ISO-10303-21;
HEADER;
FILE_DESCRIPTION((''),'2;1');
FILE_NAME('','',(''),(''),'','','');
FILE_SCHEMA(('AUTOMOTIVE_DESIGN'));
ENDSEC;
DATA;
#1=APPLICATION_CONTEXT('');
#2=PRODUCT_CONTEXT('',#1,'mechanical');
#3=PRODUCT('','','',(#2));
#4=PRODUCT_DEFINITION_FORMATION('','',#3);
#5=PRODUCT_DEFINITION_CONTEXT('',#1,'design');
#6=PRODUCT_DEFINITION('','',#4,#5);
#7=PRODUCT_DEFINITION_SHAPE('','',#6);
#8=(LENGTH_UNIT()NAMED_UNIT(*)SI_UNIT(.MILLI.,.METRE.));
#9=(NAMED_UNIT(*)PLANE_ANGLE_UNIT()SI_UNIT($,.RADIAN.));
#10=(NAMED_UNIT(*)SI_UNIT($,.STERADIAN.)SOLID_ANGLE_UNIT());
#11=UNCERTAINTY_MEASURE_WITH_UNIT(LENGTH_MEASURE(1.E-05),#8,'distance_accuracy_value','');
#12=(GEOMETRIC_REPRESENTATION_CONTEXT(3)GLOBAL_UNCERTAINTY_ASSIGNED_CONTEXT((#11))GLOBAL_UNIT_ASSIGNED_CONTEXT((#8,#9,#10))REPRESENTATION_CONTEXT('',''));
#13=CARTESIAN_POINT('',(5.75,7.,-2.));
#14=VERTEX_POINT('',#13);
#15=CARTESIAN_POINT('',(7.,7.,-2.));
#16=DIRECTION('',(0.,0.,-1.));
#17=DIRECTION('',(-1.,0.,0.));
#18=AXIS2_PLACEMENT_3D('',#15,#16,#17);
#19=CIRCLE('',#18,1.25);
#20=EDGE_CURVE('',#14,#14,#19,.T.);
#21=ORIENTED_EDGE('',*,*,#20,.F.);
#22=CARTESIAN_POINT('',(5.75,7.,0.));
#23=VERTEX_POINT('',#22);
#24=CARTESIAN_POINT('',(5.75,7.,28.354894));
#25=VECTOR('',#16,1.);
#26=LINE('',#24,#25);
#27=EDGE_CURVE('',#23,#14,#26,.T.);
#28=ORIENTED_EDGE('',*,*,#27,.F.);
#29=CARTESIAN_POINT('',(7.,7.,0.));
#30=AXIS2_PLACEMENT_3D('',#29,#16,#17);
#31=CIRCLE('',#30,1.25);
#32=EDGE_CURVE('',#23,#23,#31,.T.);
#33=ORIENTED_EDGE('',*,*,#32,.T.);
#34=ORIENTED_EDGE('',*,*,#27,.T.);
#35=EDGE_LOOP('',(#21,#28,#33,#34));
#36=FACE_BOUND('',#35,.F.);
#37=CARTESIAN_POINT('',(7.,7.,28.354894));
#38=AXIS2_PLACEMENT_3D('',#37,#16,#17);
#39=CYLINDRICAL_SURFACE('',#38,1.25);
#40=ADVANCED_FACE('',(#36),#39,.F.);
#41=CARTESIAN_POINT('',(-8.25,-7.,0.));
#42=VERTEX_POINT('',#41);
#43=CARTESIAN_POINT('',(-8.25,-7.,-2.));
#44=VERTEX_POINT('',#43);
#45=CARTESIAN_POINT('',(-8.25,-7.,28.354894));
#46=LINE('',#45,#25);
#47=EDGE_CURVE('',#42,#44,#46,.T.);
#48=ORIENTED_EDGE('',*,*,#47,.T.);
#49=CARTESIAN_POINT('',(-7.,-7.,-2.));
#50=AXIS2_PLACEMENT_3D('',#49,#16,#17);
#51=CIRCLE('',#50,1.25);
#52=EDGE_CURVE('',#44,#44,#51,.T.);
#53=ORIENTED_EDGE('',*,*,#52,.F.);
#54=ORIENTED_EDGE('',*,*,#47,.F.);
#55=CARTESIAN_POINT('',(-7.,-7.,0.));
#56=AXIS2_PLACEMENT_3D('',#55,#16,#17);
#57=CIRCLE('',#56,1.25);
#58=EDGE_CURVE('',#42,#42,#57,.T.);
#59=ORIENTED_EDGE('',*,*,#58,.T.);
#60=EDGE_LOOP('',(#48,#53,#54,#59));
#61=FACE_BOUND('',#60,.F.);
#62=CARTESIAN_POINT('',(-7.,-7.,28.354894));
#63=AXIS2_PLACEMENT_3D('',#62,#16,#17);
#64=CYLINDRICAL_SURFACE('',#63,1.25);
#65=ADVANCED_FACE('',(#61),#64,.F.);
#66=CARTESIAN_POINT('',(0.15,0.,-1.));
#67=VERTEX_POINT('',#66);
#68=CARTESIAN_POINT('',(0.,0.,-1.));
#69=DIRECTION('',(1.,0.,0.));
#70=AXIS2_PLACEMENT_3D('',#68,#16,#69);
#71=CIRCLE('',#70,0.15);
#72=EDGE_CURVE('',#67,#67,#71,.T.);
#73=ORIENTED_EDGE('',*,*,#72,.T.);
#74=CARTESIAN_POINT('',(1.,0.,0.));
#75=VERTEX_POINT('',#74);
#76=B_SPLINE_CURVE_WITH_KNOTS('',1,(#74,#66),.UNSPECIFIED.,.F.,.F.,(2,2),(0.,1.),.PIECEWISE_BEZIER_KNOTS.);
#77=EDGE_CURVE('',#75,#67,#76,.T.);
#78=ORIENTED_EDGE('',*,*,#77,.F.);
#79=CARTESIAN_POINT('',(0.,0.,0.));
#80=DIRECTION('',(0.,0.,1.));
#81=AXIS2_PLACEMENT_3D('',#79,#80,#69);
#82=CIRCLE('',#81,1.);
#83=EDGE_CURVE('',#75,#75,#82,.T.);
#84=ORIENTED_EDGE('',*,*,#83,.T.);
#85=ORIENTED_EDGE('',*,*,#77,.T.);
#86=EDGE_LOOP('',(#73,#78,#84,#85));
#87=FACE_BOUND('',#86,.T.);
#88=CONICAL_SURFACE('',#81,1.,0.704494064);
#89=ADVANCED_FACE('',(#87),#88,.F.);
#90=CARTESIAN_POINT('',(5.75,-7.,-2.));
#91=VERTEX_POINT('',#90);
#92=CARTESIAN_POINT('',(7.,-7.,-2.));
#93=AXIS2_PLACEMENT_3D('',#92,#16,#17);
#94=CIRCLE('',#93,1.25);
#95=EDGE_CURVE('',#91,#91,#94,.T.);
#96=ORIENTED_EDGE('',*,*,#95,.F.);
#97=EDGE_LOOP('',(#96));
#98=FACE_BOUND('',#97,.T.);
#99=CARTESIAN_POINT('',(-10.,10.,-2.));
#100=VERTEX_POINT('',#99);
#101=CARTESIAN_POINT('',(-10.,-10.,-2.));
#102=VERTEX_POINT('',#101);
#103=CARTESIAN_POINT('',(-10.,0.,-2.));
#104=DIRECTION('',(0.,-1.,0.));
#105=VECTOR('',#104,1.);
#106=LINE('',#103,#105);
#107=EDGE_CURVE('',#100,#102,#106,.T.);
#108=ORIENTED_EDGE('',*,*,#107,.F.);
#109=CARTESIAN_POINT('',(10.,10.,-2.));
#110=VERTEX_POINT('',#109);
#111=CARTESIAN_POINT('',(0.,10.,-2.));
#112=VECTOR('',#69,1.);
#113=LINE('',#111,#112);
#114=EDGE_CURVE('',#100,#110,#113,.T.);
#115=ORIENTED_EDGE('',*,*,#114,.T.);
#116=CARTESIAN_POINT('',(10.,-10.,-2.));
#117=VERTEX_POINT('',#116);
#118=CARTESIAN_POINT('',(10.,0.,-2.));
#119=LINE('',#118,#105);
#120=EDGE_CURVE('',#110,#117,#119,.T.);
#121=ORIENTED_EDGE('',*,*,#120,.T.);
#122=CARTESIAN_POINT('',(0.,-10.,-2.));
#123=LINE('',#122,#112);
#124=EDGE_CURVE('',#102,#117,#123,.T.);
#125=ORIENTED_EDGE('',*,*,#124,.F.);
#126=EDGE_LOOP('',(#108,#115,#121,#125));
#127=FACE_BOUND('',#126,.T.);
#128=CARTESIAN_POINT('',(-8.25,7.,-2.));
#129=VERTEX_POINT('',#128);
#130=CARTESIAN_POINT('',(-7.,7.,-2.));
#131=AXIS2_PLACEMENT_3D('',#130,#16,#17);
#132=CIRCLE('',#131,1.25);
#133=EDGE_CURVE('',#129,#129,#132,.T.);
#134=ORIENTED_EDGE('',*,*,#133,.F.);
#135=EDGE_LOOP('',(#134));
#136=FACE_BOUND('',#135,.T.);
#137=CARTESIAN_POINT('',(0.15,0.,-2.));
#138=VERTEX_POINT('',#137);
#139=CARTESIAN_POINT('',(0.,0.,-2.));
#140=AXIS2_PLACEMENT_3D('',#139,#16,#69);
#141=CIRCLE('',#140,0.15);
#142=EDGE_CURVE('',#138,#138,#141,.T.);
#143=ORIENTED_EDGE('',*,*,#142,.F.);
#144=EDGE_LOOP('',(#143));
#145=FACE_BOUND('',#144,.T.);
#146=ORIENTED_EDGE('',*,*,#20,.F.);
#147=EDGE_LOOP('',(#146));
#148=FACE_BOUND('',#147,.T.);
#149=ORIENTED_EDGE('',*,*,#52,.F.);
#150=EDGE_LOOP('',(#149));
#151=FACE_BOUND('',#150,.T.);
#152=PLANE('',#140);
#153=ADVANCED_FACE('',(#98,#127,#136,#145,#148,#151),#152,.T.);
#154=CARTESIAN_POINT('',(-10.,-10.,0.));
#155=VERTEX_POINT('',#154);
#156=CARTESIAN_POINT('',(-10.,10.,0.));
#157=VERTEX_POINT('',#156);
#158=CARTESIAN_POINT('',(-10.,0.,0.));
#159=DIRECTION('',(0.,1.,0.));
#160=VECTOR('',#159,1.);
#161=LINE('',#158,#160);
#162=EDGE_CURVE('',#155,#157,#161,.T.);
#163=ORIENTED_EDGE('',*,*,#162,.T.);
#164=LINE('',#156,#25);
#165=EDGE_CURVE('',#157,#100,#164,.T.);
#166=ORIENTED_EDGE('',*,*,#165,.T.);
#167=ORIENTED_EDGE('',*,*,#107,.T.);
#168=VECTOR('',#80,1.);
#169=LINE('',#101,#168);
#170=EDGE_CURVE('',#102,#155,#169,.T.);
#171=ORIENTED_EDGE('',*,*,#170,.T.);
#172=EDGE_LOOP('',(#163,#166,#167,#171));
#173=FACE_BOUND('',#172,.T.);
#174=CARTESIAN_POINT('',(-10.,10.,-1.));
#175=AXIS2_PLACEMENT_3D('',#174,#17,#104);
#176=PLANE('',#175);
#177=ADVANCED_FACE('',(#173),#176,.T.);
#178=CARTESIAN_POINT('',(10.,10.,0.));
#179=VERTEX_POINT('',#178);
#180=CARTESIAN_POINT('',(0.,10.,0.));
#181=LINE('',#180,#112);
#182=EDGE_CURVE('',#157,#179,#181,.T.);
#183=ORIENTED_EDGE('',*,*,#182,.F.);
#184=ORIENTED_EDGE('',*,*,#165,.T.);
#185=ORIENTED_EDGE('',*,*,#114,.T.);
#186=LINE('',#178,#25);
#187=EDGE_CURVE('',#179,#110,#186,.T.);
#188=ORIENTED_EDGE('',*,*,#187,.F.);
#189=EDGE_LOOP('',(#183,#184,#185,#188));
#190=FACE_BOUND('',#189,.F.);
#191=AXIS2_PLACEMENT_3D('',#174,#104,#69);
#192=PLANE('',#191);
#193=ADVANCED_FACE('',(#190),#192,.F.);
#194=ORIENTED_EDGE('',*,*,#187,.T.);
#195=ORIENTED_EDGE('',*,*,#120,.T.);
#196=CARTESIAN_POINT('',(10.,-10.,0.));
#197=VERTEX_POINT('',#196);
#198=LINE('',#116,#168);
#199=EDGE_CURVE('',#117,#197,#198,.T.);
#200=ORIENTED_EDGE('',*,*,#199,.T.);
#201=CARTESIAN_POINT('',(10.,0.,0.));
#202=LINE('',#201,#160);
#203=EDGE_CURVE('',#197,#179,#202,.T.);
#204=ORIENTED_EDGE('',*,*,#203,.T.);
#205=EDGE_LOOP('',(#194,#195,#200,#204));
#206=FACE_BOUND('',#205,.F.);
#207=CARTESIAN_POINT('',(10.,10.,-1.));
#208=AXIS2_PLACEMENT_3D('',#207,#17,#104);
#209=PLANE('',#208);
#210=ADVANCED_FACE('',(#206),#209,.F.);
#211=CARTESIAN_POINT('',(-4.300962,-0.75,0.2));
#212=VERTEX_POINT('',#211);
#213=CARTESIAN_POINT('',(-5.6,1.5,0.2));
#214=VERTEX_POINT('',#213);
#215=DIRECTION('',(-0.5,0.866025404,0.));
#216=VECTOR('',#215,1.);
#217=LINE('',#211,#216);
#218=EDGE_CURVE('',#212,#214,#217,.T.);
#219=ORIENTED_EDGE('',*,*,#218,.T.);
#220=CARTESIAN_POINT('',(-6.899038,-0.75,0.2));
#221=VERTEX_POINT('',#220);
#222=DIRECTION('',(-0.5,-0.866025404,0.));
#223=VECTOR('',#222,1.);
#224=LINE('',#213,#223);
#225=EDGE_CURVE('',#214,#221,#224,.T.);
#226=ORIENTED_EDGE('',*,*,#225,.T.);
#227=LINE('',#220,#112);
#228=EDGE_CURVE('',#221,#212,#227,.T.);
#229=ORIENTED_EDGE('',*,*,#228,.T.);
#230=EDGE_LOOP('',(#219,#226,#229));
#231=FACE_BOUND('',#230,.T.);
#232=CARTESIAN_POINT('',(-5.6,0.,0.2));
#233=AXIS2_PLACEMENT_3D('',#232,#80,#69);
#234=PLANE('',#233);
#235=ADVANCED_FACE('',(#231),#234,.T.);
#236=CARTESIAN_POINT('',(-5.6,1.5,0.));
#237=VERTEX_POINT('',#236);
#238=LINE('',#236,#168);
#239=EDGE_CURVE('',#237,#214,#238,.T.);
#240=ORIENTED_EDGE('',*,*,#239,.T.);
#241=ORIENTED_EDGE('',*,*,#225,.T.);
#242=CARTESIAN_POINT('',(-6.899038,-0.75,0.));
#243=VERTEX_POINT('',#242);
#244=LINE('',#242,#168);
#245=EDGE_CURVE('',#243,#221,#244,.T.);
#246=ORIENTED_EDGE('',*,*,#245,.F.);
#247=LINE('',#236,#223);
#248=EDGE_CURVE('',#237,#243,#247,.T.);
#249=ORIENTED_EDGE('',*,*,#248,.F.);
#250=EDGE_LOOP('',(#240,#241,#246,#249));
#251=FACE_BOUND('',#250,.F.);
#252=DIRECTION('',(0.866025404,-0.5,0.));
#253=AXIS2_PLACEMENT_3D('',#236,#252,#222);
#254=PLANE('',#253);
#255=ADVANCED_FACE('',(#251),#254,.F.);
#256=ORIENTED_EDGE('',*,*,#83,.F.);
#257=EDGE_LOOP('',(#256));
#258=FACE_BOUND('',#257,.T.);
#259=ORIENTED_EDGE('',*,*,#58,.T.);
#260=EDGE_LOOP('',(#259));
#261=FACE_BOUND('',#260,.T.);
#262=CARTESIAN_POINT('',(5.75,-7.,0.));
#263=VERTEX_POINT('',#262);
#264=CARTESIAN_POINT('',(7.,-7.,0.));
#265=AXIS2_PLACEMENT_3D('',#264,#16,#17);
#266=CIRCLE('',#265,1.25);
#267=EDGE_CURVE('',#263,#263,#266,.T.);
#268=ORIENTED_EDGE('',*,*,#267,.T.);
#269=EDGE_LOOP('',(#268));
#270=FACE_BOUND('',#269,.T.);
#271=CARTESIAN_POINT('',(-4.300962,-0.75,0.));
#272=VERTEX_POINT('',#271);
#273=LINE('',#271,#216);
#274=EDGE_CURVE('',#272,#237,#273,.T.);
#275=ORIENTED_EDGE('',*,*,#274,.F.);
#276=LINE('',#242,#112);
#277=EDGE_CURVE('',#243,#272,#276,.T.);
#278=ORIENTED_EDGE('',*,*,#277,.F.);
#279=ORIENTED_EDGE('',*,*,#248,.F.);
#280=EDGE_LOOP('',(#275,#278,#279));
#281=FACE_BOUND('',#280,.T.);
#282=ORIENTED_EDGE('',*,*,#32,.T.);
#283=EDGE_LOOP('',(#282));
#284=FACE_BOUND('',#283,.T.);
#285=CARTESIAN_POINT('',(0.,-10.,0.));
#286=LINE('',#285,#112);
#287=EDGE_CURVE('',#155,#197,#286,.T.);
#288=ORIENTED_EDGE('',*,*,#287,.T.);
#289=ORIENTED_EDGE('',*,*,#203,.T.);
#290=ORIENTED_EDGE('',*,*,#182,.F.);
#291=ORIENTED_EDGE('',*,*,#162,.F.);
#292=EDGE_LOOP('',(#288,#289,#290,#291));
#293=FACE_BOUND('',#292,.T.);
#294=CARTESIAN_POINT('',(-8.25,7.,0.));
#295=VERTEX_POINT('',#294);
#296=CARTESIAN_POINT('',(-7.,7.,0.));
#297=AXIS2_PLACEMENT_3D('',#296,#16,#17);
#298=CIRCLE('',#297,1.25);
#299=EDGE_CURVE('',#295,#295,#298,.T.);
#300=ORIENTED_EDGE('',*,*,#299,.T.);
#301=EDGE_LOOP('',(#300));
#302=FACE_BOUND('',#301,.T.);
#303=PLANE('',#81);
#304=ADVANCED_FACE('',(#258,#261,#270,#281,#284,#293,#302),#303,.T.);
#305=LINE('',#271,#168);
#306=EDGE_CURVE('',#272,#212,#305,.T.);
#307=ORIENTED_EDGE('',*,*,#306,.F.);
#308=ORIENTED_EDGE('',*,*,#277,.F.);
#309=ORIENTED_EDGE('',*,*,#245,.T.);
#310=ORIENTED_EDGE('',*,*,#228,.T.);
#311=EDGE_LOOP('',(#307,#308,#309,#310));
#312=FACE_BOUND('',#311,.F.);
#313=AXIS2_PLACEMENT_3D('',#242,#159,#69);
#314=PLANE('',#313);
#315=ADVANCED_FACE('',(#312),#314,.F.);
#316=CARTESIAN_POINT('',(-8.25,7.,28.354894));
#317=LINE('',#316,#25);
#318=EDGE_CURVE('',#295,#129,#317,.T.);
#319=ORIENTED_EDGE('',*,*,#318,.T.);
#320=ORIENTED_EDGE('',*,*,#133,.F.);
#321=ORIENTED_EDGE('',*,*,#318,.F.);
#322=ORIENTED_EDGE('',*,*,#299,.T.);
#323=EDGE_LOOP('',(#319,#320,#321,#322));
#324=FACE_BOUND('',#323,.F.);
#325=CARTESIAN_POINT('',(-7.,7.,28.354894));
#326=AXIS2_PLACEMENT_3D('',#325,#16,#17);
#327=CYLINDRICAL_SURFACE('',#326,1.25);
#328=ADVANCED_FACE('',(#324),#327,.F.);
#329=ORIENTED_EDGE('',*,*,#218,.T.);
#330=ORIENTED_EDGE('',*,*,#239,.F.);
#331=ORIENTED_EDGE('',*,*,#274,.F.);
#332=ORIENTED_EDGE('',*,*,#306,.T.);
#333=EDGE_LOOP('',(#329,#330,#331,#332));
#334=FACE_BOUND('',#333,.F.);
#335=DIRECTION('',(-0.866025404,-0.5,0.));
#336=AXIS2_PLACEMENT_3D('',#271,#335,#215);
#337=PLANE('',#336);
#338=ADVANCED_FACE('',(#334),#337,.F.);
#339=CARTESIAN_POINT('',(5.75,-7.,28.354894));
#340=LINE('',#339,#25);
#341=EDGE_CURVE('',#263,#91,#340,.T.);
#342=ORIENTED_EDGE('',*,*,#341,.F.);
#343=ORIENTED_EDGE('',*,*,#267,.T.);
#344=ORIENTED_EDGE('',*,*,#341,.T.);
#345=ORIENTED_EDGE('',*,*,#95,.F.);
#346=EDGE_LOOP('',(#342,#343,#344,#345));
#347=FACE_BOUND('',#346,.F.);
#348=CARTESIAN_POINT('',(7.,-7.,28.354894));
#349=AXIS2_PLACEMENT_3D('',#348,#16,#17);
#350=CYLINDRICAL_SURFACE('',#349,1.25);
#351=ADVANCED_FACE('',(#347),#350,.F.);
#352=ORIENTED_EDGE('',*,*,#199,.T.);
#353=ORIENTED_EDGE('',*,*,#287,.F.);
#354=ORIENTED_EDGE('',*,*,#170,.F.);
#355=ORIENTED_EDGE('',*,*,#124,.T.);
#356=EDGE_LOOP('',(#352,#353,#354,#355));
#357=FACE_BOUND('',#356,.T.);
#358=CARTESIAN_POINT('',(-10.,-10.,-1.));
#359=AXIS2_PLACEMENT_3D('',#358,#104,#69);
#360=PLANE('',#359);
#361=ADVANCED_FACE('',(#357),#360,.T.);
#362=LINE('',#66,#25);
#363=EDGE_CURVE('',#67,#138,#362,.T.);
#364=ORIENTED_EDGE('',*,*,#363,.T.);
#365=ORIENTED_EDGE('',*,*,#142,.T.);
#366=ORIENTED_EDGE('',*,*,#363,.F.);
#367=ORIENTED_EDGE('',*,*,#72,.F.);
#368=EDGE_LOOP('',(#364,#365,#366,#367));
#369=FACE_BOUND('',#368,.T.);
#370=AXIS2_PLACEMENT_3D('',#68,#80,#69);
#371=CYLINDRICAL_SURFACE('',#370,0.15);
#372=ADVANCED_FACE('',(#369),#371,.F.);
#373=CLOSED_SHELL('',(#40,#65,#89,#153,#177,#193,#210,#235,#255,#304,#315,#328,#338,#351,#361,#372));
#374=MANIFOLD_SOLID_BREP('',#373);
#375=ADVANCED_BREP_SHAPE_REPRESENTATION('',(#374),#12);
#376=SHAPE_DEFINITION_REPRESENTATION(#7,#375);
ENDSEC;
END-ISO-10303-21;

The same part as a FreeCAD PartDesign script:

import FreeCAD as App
import Part
import Sketcher
from FreeCAD import Vector
Q = App.Units.Quantity

doc = App.newDocument("Part")
body = doc.addObject("PartDesign::Body", "Body")

# Sketch on XY plane
sketch1 = body.newObject("Sketcher::SketchObject", "Sketch")
sketch1.AttachmentSupport = (doc.getObject("XY_Plane"), [""])
sketch1.MapMode = "FlatFace"
sketch1.addGeometry([
    Part.LineSegment(Vector(-10, 10, 0), Vector(-10, -10, 0)),
    Part.LineSegment(Vector(-10, -10, 0), Vector(10, -10, 0)),
    Part.LineSegment(Vector(10, -10, 0), Vector(10, 10, 0)),
    Part.LineSegment(Vector(10, 10, 0), Vector(-10, 10, 0)),
], False)
sketch1.addConstraint([
    Sketcher.Constraint("Coincident", 0, 2, 1, 1),
    Sketcher.Constraint("Coincident", 1, 2, 2, 1),
    Sketcher.Constraint("Coincident", 2, 2, 3, 1),
    Sketcher.Constraint("Coincident", 3, 2, 0, 1),
    Sketcher.Constraint("Vertical", 0),
    Sketcher.Constraint("Horizontal", 1),
    Sketcher.Constraint("Vertical", 2),
    Sketcher.Constraint("Horizontal", 3),
    Sketcher.Constraint("Symmetric", 0, 2, 2, 2, -1, 1),
    Sketcher.Constraint("Equal", 3, 0),
    Sketcher.Constraint("DistanceX", 1, 1, 1, 2, 20.0),
])
pad1 = body.newObject("PartDesign::Pad", "Pad")
pad1.Profile = sketch1
pad1.Length = 1
pad1.Reversed = True

# Sketch on XY plane
sketch2 = body.newObject("Sketcher::SketchObject", "Sketch001")
sketch2.AttachmentSupport = (doc.getObject("XY_Plane"), [""])
sketch2.MapMode = "FlatFace"
sketch2.addGeometry(Part.Circle(Vector(0, 0, 0), Vector(0, 0, 1), 1), False)
sketch2.addConstraint([
    Sketcher.Constraint("Coincident", 0, 3, -1, 1),
    Sketcher.Constraint("Diameter", 0, 2.0),
])

# Sketch on XY plane
sketch3 = body.newObject("Sketcher::SketchObject", "Sketch002")
sketch3.AttachmentSupport = (doc.getObject("XY_Plane"), [""])
sketch3.MapMode = "FlatFace"
sketch3.AttachmentOffset = App.Placement(Vector(0, 0, -1), App.Rotation())
sketch3.addGeometry(Part.Circle(Vector(0, 0, 0), Vector(0, 0, 1), 0.15), False)
sketch3.addConstraint([
    Sketcher.Constraint("Coincident", 0, 3, -1, 1),
    Sketcher.Constraint("Diameter", 0, 0.3),
])

subtractiveloft = body.newObject("PartDesign::SubtractiveLoft", "SubtractiveLoft")
subtractiveloft.Profile = sketch2
subtractiveloft.Sections = [sketch3]

# Sketch on XY plane
sketch4 = body.newObject("Sketcher::SketchObject", "Sketch003")
sketch4.AttachmentSupport = (doc.getObject("XY_Plane"), [""])
sketch4.MapMode = "FlatFace"
sketch4.AttachmentOffset = App.Placement(Vector(0, 0, -1), App.Rotation())
sketch4.addGeometry([
    Part.LineSegment(Vector(-10, -10, 0), Vector(-10, 10, 0)),  # 0
    Part.LineSegment(Vector(-10, 10, 0), Vector(10, 10, 0)),  # 1
    Part.LineSegment(Vector(10, 10, 0), Vector(10, -10, 0)),  # 2
    Part.LineSegment(Vector(10, -10, 0), Vector(-10, -10, 0)),  # 3
    Part.Circle(Vector(0, 0, 0), Vector(0, 0, 1), 0.15),  # 4
], False)
sketch4.addConstraint([
    Sketcher.Constraint("Coincident", 0, 2, 1, 1),
    Sketcher.Constraint("Coincident", 1, 2, 2, 1),
    Sketcher.Constraint("Coincident", 2, 2, 3, 1),
    Sketcher.Constraint("Coincident", 3, 2, 0, 1),
    Sketcher.Constraint("Vertical", 0),
    Sketcher.Constraint("Horizontal", 1),
    Sketcher.Constraint("Vertical", 2),
    Sketcher.Constraint("Horizontal", 3),
    Sketcher.Constraint("Coincident", 4, 3, -1, 1),
    Sketcher.Constraint("Symmetric", 0, 2, 2, 2, -1, 1),
    Sketcher.Constraint("Equal", 3, 0),
    Sketcher.Constraint("Diameter", 4, 0.3),
    Sketcher.Constraint("DistanceX", 1, 1, 1, 2, 20.0),
])
pad2 = body.newObject("PartDesign::Pad", "Pad001")
pad2.Profile = sketch4
pad2.Length = 1
pad2.Reversed = True

# Sketch on XY plane
sketch5 = body.newObject("Sketcher::SketchObject", "Sketch004")
sketch5.AttachmentSupport = (doc.getObject("XY_Plane"), [""])
sketch5.MapMode = "FlatFace"
sketch5.addGeometry([
    Part.Circle(Vector(-7, -7, 0), Vector(0, 0, 1), 1.2),
    Part.Circle(Vector(7, -7, 0), Vector(0, 0, 1), 1.2),
    Part.Circle(Vector(7, 7, 0), Vector(0, 0, 1), 1.2),
    Part.Circle(Vector(-7, 7, 0), Vector(0, 0, 1), 1.2),
], False)
sketch5.addConstraint([
    Sketcher.Constraint("Equal", 0, 1),
    Sketcher.Constraint("Equal", 1, 2),
    Sketcher.Constraint("Equal", 2, 3),
    Sketcher.Constraint("Symmetric", 0, 3, 2, 3, -1, 1),
    Sketcher.Constraint("Symmetric", 1, 3, 3, 3, -1, 1),
    Sketcher.Constraint("Symmetric", 0, 3, 1, 3, -2),
    Sketcher.Constraint("Diameter", 0, 2.5),
    Sketcher.Constraint("DistanceX", 0, 3, -1, 1, 7.0),
    Sketcher.Constraint("DistanceY", 0, 3, -1, 1, 7.0),
])
doc.recompute()
hole = body.newObject("PartDesign::Hole", "Hole")
hole.Profile = sketch5
hole.ThreadType = "None"
hole.Diameter = 2.5
hole.DepthType = "ThroughAll"

# Sketch on XY plane
sketch6 = body.newObject("Sketcher::SketchObject", "Sketch005")
sketch6.AttachmentSupport = (doc.getObject("XY_Plane"), [""])
sketch6.MapMode = "FlatFace"
sketch6.addGeometry([
    Part.LineSegment(Vector(-4.3, -0.8, 0), Vector(-5.6, 1.5, 0)),
    Part.LineSegment(Vector(-5.6, 1.5, 0), Vector(-6.9, -0.8, 0)),
    Part.LineSegment(Vector(-6.9, -0.8, 0), Vector(-4.3, -0.8, 0)),
], False)
sketch6.addConstraint([
    Sketcher.Constraint("Coincident", 0, 2, 1, 1),
    Sketcher.Constraint("Coincident", 1, 2, 2, 1),
    Sketcher.Constraint("Coincident", 2, 2, 0, 1),
    Sketcher.Constraint("Horizontal", 2),
    Sketcher.Constraint("Equal", 0, 1),
    Sketcher.Constraint("Angle", 0, Q("120 deg")),
    Sketcher.Constraint("DistanceX", 0, 2, -1, 1, 5.6),
    Sketcher.Constraint("DistanceY", -1, 1, 0, 2, 1.5),
    Sketcher.Constraint("DistanceY", 1, 2, -1, 1, 0.75),
])
pad3 = body.newObject("PartDesign::Pad", "Pad002")
pad3.Profile = sketch6
pad3.Length = 0.2

doc.recompute()
